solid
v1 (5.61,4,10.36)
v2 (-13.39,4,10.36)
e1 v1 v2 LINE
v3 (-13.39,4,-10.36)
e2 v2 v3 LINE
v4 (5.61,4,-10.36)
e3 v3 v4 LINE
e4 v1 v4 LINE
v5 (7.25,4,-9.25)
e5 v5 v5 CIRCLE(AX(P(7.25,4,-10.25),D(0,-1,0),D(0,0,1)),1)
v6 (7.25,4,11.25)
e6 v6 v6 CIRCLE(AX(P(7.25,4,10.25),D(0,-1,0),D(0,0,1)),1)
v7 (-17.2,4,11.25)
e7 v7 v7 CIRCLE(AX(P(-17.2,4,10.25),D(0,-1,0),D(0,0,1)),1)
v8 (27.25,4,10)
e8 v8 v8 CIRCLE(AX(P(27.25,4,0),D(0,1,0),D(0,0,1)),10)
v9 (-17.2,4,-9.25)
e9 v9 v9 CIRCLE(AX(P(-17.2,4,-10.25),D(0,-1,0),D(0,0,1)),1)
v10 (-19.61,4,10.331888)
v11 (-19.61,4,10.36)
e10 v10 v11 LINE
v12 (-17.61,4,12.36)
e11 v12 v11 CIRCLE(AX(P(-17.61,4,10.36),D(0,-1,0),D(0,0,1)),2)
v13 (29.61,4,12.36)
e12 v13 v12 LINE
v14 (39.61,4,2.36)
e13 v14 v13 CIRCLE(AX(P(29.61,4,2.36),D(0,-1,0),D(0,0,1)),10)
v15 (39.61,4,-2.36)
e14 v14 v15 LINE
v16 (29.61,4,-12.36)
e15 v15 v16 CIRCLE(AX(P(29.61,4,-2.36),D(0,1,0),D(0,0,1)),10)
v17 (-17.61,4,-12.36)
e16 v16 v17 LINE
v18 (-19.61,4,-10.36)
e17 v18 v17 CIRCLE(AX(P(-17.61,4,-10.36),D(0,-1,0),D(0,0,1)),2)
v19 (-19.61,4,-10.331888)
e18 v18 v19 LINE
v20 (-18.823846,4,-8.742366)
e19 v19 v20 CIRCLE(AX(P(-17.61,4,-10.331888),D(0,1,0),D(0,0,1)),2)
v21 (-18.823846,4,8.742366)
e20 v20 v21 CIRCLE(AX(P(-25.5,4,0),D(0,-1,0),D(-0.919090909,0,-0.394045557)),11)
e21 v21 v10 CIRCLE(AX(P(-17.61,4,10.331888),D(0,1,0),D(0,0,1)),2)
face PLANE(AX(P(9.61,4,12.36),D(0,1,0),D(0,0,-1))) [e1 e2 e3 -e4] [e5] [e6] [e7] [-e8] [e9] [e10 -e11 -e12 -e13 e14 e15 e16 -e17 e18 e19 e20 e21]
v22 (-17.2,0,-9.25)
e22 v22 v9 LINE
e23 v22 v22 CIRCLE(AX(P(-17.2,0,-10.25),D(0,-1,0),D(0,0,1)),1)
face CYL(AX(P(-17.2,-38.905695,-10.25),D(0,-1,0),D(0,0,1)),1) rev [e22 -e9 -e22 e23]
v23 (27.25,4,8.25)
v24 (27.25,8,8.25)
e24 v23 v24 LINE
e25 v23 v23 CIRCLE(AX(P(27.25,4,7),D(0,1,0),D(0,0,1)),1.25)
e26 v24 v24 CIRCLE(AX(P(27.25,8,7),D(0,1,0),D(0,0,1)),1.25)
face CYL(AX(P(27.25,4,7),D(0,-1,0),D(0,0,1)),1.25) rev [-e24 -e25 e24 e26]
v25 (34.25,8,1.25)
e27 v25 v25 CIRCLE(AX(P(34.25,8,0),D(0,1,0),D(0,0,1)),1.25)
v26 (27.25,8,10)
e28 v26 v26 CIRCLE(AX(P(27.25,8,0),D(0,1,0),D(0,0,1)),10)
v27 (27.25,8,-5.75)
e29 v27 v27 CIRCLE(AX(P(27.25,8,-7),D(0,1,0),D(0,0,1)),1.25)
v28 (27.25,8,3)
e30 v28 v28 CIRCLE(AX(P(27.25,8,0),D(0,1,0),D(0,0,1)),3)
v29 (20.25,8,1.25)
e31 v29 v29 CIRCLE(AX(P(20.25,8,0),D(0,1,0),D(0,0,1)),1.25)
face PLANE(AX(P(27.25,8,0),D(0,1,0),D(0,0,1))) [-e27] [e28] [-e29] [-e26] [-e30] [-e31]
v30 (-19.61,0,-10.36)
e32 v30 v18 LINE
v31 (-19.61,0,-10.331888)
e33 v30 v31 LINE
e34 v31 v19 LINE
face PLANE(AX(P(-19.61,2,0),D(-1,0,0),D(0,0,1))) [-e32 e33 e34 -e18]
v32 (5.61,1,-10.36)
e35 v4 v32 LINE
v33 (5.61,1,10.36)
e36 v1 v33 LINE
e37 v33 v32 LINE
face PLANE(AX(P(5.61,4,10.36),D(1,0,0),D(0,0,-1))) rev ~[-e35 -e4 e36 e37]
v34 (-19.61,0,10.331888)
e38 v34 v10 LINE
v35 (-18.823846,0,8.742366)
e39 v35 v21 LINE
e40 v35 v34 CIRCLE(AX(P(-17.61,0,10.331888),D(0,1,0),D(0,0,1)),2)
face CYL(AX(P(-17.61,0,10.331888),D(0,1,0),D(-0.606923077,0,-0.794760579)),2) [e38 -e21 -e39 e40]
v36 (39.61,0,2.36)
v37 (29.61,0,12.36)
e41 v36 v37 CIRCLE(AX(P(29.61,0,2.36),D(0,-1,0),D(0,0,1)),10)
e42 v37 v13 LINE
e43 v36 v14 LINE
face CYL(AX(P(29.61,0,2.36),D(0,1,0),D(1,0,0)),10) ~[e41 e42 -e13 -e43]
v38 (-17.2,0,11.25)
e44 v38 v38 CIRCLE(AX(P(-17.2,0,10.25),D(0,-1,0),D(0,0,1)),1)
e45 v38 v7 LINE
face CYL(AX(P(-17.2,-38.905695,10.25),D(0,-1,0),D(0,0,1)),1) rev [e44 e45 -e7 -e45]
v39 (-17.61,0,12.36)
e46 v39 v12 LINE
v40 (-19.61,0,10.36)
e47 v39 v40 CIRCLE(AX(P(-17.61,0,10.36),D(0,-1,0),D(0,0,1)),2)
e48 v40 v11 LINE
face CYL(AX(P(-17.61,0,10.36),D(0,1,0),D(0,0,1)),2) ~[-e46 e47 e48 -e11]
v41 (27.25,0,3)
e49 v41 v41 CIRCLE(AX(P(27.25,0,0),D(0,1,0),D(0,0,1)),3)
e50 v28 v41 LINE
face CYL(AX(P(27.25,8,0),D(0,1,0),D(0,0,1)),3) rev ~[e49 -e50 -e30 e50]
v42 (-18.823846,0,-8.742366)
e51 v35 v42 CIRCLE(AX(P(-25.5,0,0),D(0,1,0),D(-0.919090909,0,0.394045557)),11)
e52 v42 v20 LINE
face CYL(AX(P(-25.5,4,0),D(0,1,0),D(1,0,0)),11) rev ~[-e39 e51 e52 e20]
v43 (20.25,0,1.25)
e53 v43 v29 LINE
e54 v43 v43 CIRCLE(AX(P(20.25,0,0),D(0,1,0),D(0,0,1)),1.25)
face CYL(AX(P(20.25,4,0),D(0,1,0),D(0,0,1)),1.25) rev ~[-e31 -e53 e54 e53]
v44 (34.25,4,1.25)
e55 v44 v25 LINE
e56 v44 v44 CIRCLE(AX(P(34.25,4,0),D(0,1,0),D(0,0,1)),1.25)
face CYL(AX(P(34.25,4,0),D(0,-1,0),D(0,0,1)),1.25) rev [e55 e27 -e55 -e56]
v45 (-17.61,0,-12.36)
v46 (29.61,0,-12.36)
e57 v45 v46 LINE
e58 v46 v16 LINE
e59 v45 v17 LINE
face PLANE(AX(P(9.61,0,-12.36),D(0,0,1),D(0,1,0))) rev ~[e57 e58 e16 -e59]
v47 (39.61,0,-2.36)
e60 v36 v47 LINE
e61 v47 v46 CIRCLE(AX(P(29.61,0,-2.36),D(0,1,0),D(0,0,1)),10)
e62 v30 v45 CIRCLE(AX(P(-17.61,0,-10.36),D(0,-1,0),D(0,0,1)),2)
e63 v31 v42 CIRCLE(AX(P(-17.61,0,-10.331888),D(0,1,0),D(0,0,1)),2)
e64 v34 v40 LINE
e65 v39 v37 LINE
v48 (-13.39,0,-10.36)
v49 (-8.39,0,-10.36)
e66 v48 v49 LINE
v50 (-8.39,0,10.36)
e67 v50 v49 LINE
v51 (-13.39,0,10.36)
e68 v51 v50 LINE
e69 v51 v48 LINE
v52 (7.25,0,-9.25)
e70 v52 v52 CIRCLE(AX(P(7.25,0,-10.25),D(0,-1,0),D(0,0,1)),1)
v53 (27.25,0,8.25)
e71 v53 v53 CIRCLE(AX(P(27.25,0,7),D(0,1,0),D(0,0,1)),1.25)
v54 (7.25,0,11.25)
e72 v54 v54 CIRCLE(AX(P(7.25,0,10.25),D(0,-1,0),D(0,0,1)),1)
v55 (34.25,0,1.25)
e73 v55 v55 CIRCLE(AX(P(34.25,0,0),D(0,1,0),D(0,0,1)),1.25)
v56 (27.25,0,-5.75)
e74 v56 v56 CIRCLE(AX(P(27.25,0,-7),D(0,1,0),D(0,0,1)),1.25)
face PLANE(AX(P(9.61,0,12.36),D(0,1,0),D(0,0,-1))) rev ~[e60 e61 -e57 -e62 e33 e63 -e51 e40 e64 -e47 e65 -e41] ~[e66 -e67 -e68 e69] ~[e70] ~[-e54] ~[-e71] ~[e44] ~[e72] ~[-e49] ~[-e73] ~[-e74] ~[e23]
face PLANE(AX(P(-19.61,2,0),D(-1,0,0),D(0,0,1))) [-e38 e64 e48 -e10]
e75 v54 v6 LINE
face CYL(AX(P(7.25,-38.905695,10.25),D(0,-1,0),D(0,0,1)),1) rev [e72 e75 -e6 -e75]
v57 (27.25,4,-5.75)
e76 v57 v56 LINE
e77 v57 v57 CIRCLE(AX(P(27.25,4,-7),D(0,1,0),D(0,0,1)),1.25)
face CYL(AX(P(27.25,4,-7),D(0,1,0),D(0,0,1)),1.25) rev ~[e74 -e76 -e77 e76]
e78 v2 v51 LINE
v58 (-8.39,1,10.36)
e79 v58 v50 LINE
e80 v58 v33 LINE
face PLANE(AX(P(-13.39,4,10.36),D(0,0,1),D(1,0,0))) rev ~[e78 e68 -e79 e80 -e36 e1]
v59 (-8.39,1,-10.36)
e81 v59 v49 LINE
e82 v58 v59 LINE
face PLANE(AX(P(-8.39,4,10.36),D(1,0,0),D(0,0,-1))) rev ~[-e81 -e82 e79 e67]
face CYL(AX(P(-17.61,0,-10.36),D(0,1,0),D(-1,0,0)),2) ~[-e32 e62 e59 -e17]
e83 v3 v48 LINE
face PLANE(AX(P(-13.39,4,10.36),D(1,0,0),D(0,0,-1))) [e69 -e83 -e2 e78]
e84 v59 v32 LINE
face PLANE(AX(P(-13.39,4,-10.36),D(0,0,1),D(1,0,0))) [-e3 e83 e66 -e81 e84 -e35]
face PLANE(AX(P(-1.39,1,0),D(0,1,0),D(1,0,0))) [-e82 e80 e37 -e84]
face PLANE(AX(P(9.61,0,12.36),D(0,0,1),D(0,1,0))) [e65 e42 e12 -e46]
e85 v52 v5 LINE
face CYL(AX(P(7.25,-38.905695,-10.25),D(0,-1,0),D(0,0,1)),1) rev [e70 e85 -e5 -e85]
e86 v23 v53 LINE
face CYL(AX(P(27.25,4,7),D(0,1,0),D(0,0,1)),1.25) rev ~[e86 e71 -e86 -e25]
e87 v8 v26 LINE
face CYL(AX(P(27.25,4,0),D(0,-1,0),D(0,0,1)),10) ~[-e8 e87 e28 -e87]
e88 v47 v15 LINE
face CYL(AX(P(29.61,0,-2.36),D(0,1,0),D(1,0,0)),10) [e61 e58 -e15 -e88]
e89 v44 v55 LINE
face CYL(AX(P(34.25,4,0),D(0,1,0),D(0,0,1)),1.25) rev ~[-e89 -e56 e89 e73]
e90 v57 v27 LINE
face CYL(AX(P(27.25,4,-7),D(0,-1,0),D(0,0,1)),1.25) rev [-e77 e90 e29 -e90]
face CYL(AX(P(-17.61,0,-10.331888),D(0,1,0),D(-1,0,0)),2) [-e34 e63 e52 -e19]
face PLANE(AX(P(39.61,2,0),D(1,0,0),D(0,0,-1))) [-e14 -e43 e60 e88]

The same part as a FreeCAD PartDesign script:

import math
import FreeCAD as App
import Part
import Sketcher

V = App.Vector


def edges_at(feature, points):
    """Names of the edges that pass closest to the given points."""
    edges = feature.Shape.Edges
    near = lambda p: min(range(len(edges)), key=lambda i: edges[i].distToShape(Part.Vertex(*p))[0])
    return sorted({f"Edge{near(p) + 1}" for p in points})


def add_polygon(sketch, points):
    """Adds a closed chain of lines whose ends are joined by coincident constraints."""
    first, n = sketch.GeometryCount, len(points)
    for a, b in zip(points, points[1:] + points[:1]):
        sketch.addGeometry(Part.LineSegment(App.Vector(*a, 0), App.Vector(*b, 0)), False)
    for i in range(n):
        sketch.addConstraint(Sketcher.Constraint("Coincident", first + i, 2, first + (i + 1) % n, 1))

doc = App.newDocument("Part")
body = doc.addObject("PartDesign::Body", "Body")

# Sketch on XZ plane
sketch1 = body.newObject("Sketcher::SketchObject", "Sketch")
sketch1.AttachmentSupport = (doc.getObject("XZ_Plane"), [""])
sketch1.MapMode = "FlatFace"
sketch1.addGeometry(Part.LineSegment(V(9.61, 12.36, 0), V(9.61, -12.36, 0)), False)
sketch1.addGeometry(Part.LineSegment(V(9.61, -12.36, 0), V(-32.61, -12.36, 0)), False)
sketch1.addGeometry(Part.ArcOfCircle(Part.Circle(V(-32.61, -9.36, 0), V(0, 0, 1), 3), math.radians(180), math.radians(270)), False)
sketch1.addGeometry(Part.LineSegment(V(-35.61, -9.36, 0), V(-35.61, 9.36, 0)), False)
sketch1.addGeometry(Part.ArcOfCircle(Part.Circle(V(-32.61, 9.36, 0), V(0, 0, 1), 3), math.radians(90), math.radians(180)), False)
sketch1.addGeometry(Part.LineSegment(V(-32.61, 12.36, 0), V(9.61, 12.36, 0)), False)
sketch1.addConstraint(Sketcher.Constraint("Coincident", 0, 2, 1, 1))
sketch1.addConstraint(Sketcher.Constraint("Tangent", 1, 2, 2, 2))
sketch1.addConstraint(Sketcher.Constraint("Tangent", 2, 1, 3, 1))
sketch1.addConstraint(Sketcher.Constraint("Tangent", 3, 2, 4, 2))
sketch1.addConstraint(Sketcher.Constraint("Tangent", 4, 1, 5, 1))
sketch1.addConstraint(Sketcher.Constraint("Coincident", 5, 2, 0, 1))
sketch1.addConstraint(Sketcher.Constraint("Vertical", 0))
sketch1.addConstraint(Sketcher.Constraint("Horizontal", 1))
sketch1.addConstraint(Sketcher.Constraint("Vertical", 3))
sketch1.addConstraint(Sketcher.Constraint("Horizontal", 5))
sketch1.addConstraint(Sketcher.Constraint("Equal", 2, 4))
sketch1.addConstraint(Sketcher.Constraint("Radius", 2, 3.0))
sketch1.addConstraint(Sketcher.Constraint("DistanceX", 1, 2, 1, 1, 42.22))
sketch1.addConstraint(Sketcher.Constraint("DistanceY", 0, 2, 0, 1, 24.72))
sketch1.addConstraint(Sketcher.Constraint("DistanceX", 2, 3, -1, 1, 32.61))
sketch1.addConstraint(Sketcher.Constraint("DistanceY", 2, 3, -1, 1, 9.36))
pad1 = body.newObject("PartDesign::Pad", "Pad")
pad1.Profile = sketch1
pad1.Length = 4
pad1.Reversed = True

# Sketch on XZ plane
sketch2 = body.newObject("Sketcher::SketchObject", "Sketch001")
sketch2.AttachmentSupport = (doc.getObject("XZ_Plane"), [""])
sketch2.MapMode = "FlatFace"
sketch2.addGeometry(Part.Circle(V(7.25, 10.25, 0), V(0, 0, 1), 1), False)
sketch2.addGeometry(Part.Circle(V(7.25, -10.25, 0), V(0, 0, 1), 1), False)
sketch2.addGeometry(Part.Circle(V(-17.2, 10.25, 0), V(0, 0, 1), 1), False)
sketch2.addGeometry(Part.Circle(V(-17.2, -10.25, 0), V(0, 0, 1), 1), False)
sketch2.addConstraint(Sketcher.Constraint("Equal", 0, 1))
sketch2.addConstraint(Sketcher.Constraint("Equal", 1, 2))
sketch2.addConstraint(Sketcher.Constraint("Equal", 2, 3))
sketch2.addConstraint(Sketcher.Constraint("Symmetric", 0, 3, 1, 3, -1))
sketch2.addConstraint(Sketcher.Constraint("Symmetric", 2, 3, 3, 3, -1))
sketch2.addConstraint(Sketcher.Constraint("Horizontal", 0, 3, 2, 3))
sketch2.addConstraint(Sketcher.Constraint("Diameter", 0, 2.0))
sketch2.addConstraint(Sketcher.Constraint("DistanceX", 2, 3, -1, 1, 17.2))
sketch2.addConstraint(Sketcher.Constraint("DistanceY", 1, 3, 0, 3, 20.5))
sketch2.addConstraint(Sketcher.Constraint("DistanceX", -1, 1, 0, 3, 7.25))
pocket1 = body.newObject("PartDesign::Pocket", "Pocket")
pocket1.Profile = sketch2
pocket1.Type = "ThroughAll"
pocket1.Midplane = True

# Sketch on XZ plane
sketch3 = body.newObject("Sketcher::SketchObject", "Sketch002")
sketch3.AttachmentSupport = (doc.getObject("XZ_Plane"), [""])
sketch3.MapMode = "FlatFace"
sketch3.AttachmentOffset = App.Placement(V(0, 0, -4), App.Rotation())
add_polygon(sketch3, [(-8.39, -10.36), (-8.39, 10.36), (5.61, 10.36), (5.61, -10.36)])  # lines 0-3
sketch3.addConstraint(Sketcher.Constraint("Vertical", 0))
sketch3.addConstraint(Sketcher.Constraint("Horizontal", 1))
sketch3.addConstraint(Sketcher.Constraint("Vertical", 2))
sketch3.addConstraint(Sketcher.Constraint("Horizontal", 3))
sketch3.addConstraint(Sketcher.Constraint("DistanceX", 1, 1, 1, 2, 14.0))
sketch3.addConstraint(Sketcher.Constraint("DistanceY", 0, 1, 0, 2, 20.72))
sketch3.addConstraint(Sketcher.Constraint("DistanceX", 0, 2, -1, 1, 8.39))
sketch3.addConstraint(Sketcher.Constraint("DistanceY", -1, 1, 0, 2, 10.36))
pocket2 = body.newObject("PartDesign::Pocket", "Pocket001")
pocket2.Profile = sketch3
pocket2.Length = 3
pocket2.Reversed = True

# Sketch on XZ plane
sketch4 = body.newObject("Sketcher::SketchObject", "Sketch003")
sketch4.AttachmentSupport = (doc.getObject("XZ_Plane"), [""])
sketch4.MapMode = "FlatFace"
sketch4.AttachmentOffset = App.Placement(V(0, 0, -4), App.Rotation())
add_polygon(sketch4, [(-13.39, -10.36), (-13.39, 10.36), (-8.39, 10.36), (-8.39, -10.36)])  # lines 0-3
sketch4.addConstraint(Sketcher.Constraint("Vertical", 0))
sketch4.addConstraint(Sketcher.Constraint("Horizontal", 1))
sketch4.addConstraint(Sketcher.Constraint("Vertical", 2))
sketch4.addConstraint(Sketcher.Constraint("Horizontal", 3))
sketch4.addConstraint(Sketcher.Constraint("DistanceX", 1, 1, 1, 2, 5.0))
sketch4.addConstraint(Sketcher.Constraint("DistanceY", 0, 1, 0, 2, 20.72))
sketch4.addConstraint(Sketcher.Constraint("DistanceX", 0, 2, -1, 1, 13.39))
sketch4.addConstraint(Sketcher.Constraint("DistanceY", -1, 1, 0, 2, 10.36))
pocket3 = body.newObject("PartDesign::Pocket", "Pocket002")
pocket3.Profile = sketch4
pocket3.Length = 4
pocket3.Reversed = True

# Sketch on YZ plane
sketch5 = body.newObject("Sketcher::SketchObject", "Sketch004")
sketch5.AttachmentSupport = (doc.getObject("YZ_Plane"), [""])
sketch5.MapMode = "FlatFace"
sketch5.AttachmentOffset = App.Placement(V(0, 0, 9.61), App.Rotation())
add_polygon(sketch5, [(4, 12.36), (0, 12.36), (0, -12.36), (4, -12.36)])  # lines 0-3
sketch5.addConstraint(Sketcher.Constraint("Horizontal", 0))
sketch5.addConstraint(Sketcher.Constraint("Vertical", 1))
sketch5.addConstraint(Sketcher.Constraint("Horizontal", 2))
sketch5.addConstraint(Sketcher.Constraint("Vertical", 3))
sketch5.addConstraint(Sketcher.Constraint("Symmetric", 0, 2, 1, 2, -1, 1))
sketch5.addConstraint(Sketcher.Constraint("DistanceX", 0, 2, 0, 1, 4.0))
sketch5.addConstraint(Sketcher.Constraint("DistanceY", 1, 2, 1, 1, 24.72))
pad2 = body.newObject("PartDesign::Pad", "Pad001")
pad2.Profile = sketch5
pad2.Length = 30

# Sketch on XZ plane
sketch6 = body.newObject("Sketcher::SketchObject", "Sketch005")
sketch6.AttachmentSupport = (doc.getObject("XZ_Plane"), [""])
sketch6.MapMode = "FlatFace"
sketch6.AttachmentOffset = App.Placement(V(0, 0, -4), App.Rotation())
sketch6.addGeometry(Part.Circle(V(27.25, 0, 0), V(0, 0, 1), 10), False)
sketch6.addConstraint(Sketcher.Constraint("PointOnObject", 0, 3, -1))
sketch6.addConstraint(Sketcher.Constraint("Diameter", 0, 20.0))
sketch6.addConstraint(Sketcher.Constraint("DistanceX", -1, 1, 0, 3, 27.25))
pad3 = body.newObject("PartDesign::Pad", "Pad002")
pad3.Profile = sketch6
pad3.Length = 4
pad3.Reversed = True

# Sketch on XZ plane
sketch7 = body.newObject("Sketcher::SketchObject", "Sketch006")
sketch7.AttachmentSupport = (doc.getObject("XZ_Plane"), [""])
sketch7.MapMode = "FlatFace"
sketch7.AttachmentOffset = App.Placement(V(0, 0, -4), App.Rotation())
sketch7.addGeometry(Part.Circle(V(27.25, 7, 0), V(0, 0, 1), 1.25), False)
sketch7.addGeometry(Part.Circle(V(34.25, 0, 0), V(0, 0, 1), 1.25), False)
sketch7.addGeometry(Part.Circle(V(27.25, -7, 0), V(0, 0, 1), 1.25), False)
sketch7.addGeometry(Part.Circle(V(20.25, 0, 0), V(0, 0, 1), 1.25), False)
sketch7.addConstraint(Sketcher.Constraint("Equal", 0, 1))
sketch7.addConstraint(Sketcher.Constraint("Equal", 1, 2))
sketch7.addConstraint(Sketcher.Constraint("Equal", 2, 3))
sketch7.addConstraint(Sketcher.Constraint("Symmetric", 0, 3, 2, 3, -1))
sketch7.addConstraint(Sketcher.Constraint("PointOnObject", 1, 3, -1))
sketch7.addConstraint(Sketcher.Constraint("PointOnObject", 3, 3, -1))
sketch7.addConstraint(Sketcher.Constraint("Diameter", 0, 2.5))
sketch7.addConstraint(Sketcher.Constraint("DistanceY", -1, 1, 0, 3, 7.0))
sketch7.addConstraint(Sketcher.Constraint("DistanceX", 0, 3, 1, 3, 7.0))
sketch7.addConstraint(Sketcher.Constraint("DistanceX", 3, 3, 0, 3, 7.0))
sketch7.addConstraint(Sketcher.Constraint("DistanceX", -1, 1, 0, 3, 27.25))
pocket4 = body.newObject("PartDesign::Pocket", "Pocket003")
pocket4.Profile = sketch7
pocket4.Length = 8
pocket4.Midplane = True
doc.recompute()

fillet = body.newObject("PartDesign::Fillet", "Fillet")
fillet.Base = (pocket4, edges_at(pocket4, [(39.61, 2, -12.36)]))
fillet.Radius = 10
doc.recompute()

fillet2 = body.newObject("PartDesign::Fillet", "Fillet001")
fillet2.Base = (fillet, edges_at(fillet, [(39.61, 2, 12.36)]))
fillet2.Radius = 10

# Sketch on XZ plane
sketch8 = body.newObject("Sketcher::SketchObject", "Sketch007")
sketch8.AttachmentSupport = (doc.getObject("XZ_Plane"), [""])
sketch8.MapMode = "FlatFace"
sketch8.AttachmentOffset = App.Placement(V(0, 0, -4), App.Rotation())
sketch8.addGeometry(Part.Circle(V(-25.5, 0, 0), V(0, 0, 1), 11), False)
sketch8.addConstraint(Sketcher.Constraint("PointOnObject", 0, 3, -1))
sketch8.addConstraint(Sketcher.Constraint("Diameter", 0, 22.0))
sketch8.addConstraint(Sketcher.Constraint("DistanceX", 0, 3, -1, 1, 25.5))
pocket5 = body.newObject("PartDesign::Pocket", "Pocket004")
pocket5.Profile = sketch8
pocket5.Length = 4
pocket5.Reversed = True

# Sketch on YZ plane
sketch9 = body.newObject("Sketcher::SketchObject", "Sketch008")
sketch9.AttachmentSupport = (doc.getObject("YZ_Plane"), [""])
sketch9.MapMode = "FlatFace"
sketch9.AttachmentOffset = App.Placement(V(0, 0, -35.61), App.Rotation())
add_polygon(sketch9, [(4, -12.36), (0, -12.36), (0, 12.36), (4, 12.36)])  # lines 0-3
sketch9.addConstraint(Sketcher.Constraint("Horizontal", 0))
sketch9.addConstraint(Sketcher.Constraint("Vertical", 1))
sketch9.addConstraint(Sketcher.Constraint("Horizontal", 2))
sketch9.addConstraint(Sketcher.Constraint("Vertical", 3))
sketch9.addConstraint(Sketcher.Constraint("Symmetric", 0, 2, 1, 2, -1, 1))
sketch9.addConstraint(Sketcher.Constraint("DistanceX", 0, 2, 0, 1, 4.0))
sketch9.addConstraint(Sketcher.Constraint("DistanceY", 1, 1, 1, 2, 24.72))
pocket6 = body.newObject("PartDesign::Pocket", "Pocket005")
pocket6.Profile = sketch9
pocket6.Length = 16
pocket6.Reversed = True
doc.recompute()

fillet3 = body.newObject("PartDesign::Fillet", "Fillet002")
fillet3.Base = (pocket6, edges_at(pocket6, [(-19.61, 2, 12.36)]))
fillet3.Radius = 2
doc.recompute()

fillet4 = body.newObject("PartDesign::Fillet", "Fillet003")
fillet4.Base = (fillet3, edges_at(fillet3, [(-19.61, 2, -12.36)]))
fillet4.Radius = 2
doc.recompute()

fillet5 = body.newObject("PartDesign::Fillet", "Fillet004")
fillet5.Base = (fillet4, edges_at(fillet4, [(-19.61, 2, -9.29)]))
fillet5.Radius = 2
doc.recompute()

fillet6 = body.newObject("PartDesign::Fillet", "Fillet005")
fillet6.Base = (fillet5, edges_at(fillet5, [(-19.61, 2, 9.29)]))
fillet6.Radius = 2

# Sketch on XZ plane
sketch10 = body.newObject("Sketcher::SketchObject", "Sketch009")
sketch10.AttachmentSupport = (doc.getObject("XZ_Plane"), [""])
sketch10.MapMode = "FlatFace"
sketch10.AttachmentOffset = App.Placement(V(0, 0, -8), App.Rotation())
sketch10.addGeometry(Part.Circle(V(27.25, 0, 0), V(0, 0, 1), 3), False)
sketch10.addConstraint(Sketcher.Constraint("PointOnObject", 0, 3, -1))
sketch10.addConstraint(Sketcher.Constraint("Diameter", 0, 6.0))
sketch10.addConstraint(Sketcher.Constraint("DistanceX", -1, 1, 0, 3, 27.25))
pocket7 = body.newObject("PartDesign::Pocket", "Pocket006")
pocket7.Profile = sketch10
pocket7.Length = 13
pocket7.Reversed = True

doc.recompute()
